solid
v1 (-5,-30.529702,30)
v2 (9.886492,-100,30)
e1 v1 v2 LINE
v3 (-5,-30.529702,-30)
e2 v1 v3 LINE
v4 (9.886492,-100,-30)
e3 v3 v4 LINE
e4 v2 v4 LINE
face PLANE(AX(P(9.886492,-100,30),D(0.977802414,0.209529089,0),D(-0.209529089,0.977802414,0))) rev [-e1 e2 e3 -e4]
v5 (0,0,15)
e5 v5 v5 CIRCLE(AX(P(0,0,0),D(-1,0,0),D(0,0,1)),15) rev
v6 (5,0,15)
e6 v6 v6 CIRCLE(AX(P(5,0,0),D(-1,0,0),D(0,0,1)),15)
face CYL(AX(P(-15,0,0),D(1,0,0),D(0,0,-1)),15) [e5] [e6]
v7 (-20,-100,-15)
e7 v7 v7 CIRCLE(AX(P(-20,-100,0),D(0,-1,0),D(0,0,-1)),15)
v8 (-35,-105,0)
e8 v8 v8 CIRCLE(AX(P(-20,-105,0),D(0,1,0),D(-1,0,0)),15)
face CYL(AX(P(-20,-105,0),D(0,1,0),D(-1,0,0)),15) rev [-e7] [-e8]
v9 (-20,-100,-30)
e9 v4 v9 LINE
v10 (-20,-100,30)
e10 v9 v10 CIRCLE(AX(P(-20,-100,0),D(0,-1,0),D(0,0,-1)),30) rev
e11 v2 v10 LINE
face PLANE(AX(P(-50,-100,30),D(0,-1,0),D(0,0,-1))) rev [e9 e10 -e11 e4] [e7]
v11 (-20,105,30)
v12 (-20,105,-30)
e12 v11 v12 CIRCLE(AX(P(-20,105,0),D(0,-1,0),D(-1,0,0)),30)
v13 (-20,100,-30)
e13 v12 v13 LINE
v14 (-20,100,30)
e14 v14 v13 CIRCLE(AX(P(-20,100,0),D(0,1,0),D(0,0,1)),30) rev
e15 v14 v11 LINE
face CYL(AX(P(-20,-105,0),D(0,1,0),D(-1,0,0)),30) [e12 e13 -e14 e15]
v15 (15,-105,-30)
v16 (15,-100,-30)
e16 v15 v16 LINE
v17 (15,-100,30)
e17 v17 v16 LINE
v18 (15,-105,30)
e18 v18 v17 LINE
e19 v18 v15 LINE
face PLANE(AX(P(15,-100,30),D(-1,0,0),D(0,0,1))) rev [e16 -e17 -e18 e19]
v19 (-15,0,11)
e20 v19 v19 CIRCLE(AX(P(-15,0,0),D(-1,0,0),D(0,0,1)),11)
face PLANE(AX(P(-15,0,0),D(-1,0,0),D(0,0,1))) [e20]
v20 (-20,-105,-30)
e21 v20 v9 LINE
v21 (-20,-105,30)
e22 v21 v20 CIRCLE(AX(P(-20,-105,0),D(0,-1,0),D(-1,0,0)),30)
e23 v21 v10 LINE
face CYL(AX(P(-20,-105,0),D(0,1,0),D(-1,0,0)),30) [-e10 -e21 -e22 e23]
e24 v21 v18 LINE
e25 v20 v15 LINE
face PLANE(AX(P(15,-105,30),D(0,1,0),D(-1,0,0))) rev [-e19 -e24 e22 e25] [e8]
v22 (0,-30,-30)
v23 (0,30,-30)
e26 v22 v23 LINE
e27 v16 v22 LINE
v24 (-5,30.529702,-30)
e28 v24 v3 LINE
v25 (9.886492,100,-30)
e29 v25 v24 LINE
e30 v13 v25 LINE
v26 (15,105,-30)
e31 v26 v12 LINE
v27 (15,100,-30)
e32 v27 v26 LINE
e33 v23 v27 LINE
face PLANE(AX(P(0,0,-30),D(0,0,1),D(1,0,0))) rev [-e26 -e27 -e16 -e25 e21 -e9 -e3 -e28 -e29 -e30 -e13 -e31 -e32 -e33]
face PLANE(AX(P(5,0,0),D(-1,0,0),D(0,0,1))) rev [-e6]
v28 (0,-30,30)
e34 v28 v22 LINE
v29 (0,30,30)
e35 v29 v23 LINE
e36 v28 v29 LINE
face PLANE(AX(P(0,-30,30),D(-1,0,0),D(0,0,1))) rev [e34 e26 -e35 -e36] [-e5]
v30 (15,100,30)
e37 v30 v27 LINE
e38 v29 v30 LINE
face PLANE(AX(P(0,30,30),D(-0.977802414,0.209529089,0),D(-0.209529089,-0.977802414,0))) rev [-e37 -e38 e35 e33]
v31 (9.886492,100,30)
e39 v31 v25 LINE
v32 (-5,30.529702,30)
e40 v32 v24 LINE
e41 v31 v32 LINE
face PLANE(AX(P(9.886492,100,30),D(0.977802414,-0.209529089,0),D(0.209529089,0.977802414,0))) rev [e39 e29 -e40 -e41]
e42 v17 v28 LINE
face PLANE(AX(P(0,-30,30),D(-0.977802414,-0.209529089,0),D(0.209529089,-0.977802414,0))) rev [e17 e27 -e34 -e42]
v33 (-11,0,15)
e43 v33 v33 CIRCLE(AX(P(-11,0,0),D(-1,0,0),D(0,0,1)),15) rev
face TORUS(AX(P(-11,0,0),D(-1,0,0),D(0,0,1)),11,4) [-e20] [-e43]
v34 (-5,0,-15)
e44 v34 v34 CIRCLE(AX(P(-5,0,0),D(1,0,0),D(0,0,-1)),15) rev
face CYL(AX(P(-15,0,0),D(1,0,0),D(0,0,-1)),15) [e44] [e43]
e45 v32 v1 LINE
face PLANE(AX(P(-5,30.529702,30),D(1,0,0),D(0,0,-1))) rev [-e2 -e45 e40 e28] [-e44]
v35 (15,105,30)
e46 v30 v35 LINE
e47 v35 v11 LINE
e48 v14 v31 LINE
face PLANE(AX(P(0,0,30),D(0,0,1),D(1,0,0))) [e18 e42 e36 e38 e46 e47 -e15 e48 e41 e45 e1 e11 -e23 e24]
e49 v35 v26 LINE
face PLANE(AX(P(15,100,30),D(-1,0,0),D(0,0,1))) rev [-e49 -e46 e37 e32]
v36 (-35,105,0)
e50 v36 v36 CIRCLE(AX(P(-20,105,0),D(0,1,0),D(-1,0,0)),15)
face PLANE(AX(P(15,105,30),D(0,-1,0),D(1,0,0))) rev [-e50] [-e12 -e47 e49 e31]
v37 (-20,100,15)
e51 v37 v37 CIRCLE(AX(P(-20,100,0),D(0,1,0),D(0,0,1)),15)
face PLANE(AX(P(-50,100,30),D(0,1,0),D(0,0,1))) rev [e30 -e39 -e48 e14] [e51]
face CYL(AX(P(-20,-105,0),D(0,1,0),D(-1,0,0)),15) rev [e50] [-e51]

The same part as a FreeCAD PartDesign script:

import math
import FreeCAD as App
import Part
import Sketcher
from FreeCAD import Vector
Q = App.Units.Quantity


def edges_at(feature, points):
    """Names of the edges that pass closest to the given points."""
    edges = feature.Shape.Edges
    near = lambda p: min(range(len(edges)), key=lambda i: edges[i].distToShape(Part.Vertex(*p))[0])
    return sorted({f"Edge{near(p) + 1}" for p in points})

doc = App.newDocument("Part")
params = doc.addObject("Spreadsheet::Sheet", "Params")
for row, (alias, value) in enumerate([
    ("sketch1_width", "65 mm"),
    ("sketch1_height", "60 mm"),
    ("sketch1_height2", "5 mm"),
    ("pad1_length", "60 mm"),
    ("sketch2_diameter", "30 mm"),
    ("sketch2_radius", "30 mm"),
    ("pocket1_length", "210 mm"),
    ("sketch3_diameter", "30 mm"),
    ("pad2_length", "20 mm"),
    ("fillet_radius", "4 mm"),
], start=1):
    params.set(f"A{row}", alias)
    params.set(f"B{row}", "=" + value)
    params.setAlias(f"B{row}", alias)

body = doc.addObject("PartDesign::Body", "Body")

# Sketch on XY plane
sketch1 = body.newObject("Sketcher::SketchObject", "Sketch")
sketch1.AttachmentSupport = (doc.getObject("XY_Plane"), [""])
sketch1.MapMode = "FlatFace"
sketch1.addGeometry([
    Part.LineSegment(Vector(0, -30, 0), Vector(0, 30, 0)),  # 0
    Part.LineSegment(Vector(0, 30, 0), Vector(15, 100, 0)),  # 1
    Part.LineSegment(Vector(15, 100, 0), Vector(15, 105, 0)),  # 2
    Part.LineSegment(Vector(15, 105, 0), Vector(-50, 105, 0)),  # 3
    Part.LineSegment(Vector(-50, 105, 0), Vector(-50, 100, 0)),  # 4
    Part.LineSegment(Vector(-50, 100, 0), Vector(10, 100, 0)),  # 5
    Part.LineSegment(Vector(10, 100, 0), Vector(-5, 31, 0)),  # 6
    Part.LineSegment(Vector(-5, 31, 0), Vector(-5, -31, 0)),  # 7
    Part.LineSegment(Vector(-5, -31, 0), Vector(10, -100, 0)),  # 8
    Part.LineSegment(Vector(10, -100, 0), Vector(-50, -100, 0)),  # 9
    Part.LineSegment(Vector(-50, -100, 0), Vector(-50, -105, 0)),  # 10
    Part.LineSegment(Vector(-50, -105, 0), Vector(15, -105, 0)),  # 11
    Part.LineSegment(Vector(15, -105, 0), Vector(15, -100, 0)),  # 12
    Part.LineSegment(Vector(15, -100, 0), Vector(0, -30, 0)),  # 13
], False)
sketch1.addConstraint([
    Sketcher.Constraint("Coincident", 0, 2, 1, 1),
    Sketcher.Constraint("Coincident", 1, 2, 2, 1),
    Sketcher.Constraint("Coincident", 2, 2, 3, 1),
    Sketcher.Constraint("Coincident", 3, 2, 4, 1),
    Sketcher.Constraint("Coincident", 4, 2, 5, 1),
    Sketcher.Constraint("Coincident", 5, 2, 6, 1),
    Sketcher.Constraint("Coincident", 6, 2, 7, 1),
    Sketcher.Constraint("Coincident", 7, 2, 8, 1),
    Sketcher.Constraint("Coincident", 8, 2, 9, 1),
    Sketcher.Constraint("Coincident", 9, 2, 10, 1),
    Sketcher.Constraint("Coincident", 10, 2, 11, 1),
    Sketcher.Constraint("Coincident", 11, 2, 12, 1),
    Sketcher.Constraint("Coincident", 12, 2, 13, 1),
    Sketcher.Constraint("Coincident", 13, 2, 0, 1),
    Sketcher.Constraint("Vertical", 0),
    Sketcher.Constraint("Vertical", 2),
    Sketcher.Constraint("Horizontal", 3),
    Sketcher.Constraint("Vertical", 4),
    Sketcher.Constraint("Horizontal", 5),
    Sketcher.Constraint("Vertical", 7),
    Sketcher.Constraint("Horizontal", 9),
    Sketcher.Constraint("Vertical", 10),
    Sketcher.Constraint("Horizontal", 11),
    Sketcher.Constraint("Vertical", 12),
    Sketcher.Constraint("Symmetric", 0, 2, 13, 2, -1, 1),
    Sketcher.Constraint("Symmetric", 5, 2, 8, 2, -1),
    Sketcher.Constraint("Symmetric", 3, 2, 10, 2, -1),
    Sketcher.Constraint("Symmetric", 1, 2, 12, 2, -1),
    Sketcher.Constraint("Parallel", 1, 6),
    Sketcher.Constraint("Parallel", 8, 13),
    Sketcher.Constraint("Horizontal", 1, 2, 4, 2),
    Sketcher.Constraint("DistanceX", 3, 2, 3, 1, Q("65 mm")),
    Sketcher.Constraint("DistanceY", 0, 1, 0, 2, Q("60 mm")),
    Sketcher.Constraint("DistanceY", 2, 1, 2, 2, Q("5 mm")),
    Sketcher.Constraint("DistanceX", -1, 1, 1, 2, Q("15 mm")),
    Sketcher.Constraint("DistanceY", -1, 1, 1, 2, Q("100 mm")),
    Sketcher.Constraint("DistanceX", 6, 2, -1, 1, Q("5 mm")),
    Sketcher.Constraint("DistanceY", -1, 1, 6, 2, Q("30.529702 mm")),
])
sketch1.setExpression("Constraints[31]", "Params.sketch1_width")
sketch1.setExpression("Constraints[32]", "Params.sketch1_height")
sketch1.setExpression("Constraints[33]", "Params.sketch1_height2")
pad1 = body.newObject("PartDesign::Pad", "Pad")
pad1.Profile = sketch1
pad1.setExpression("Length", "Params.pad1_length")
pad1.Midplane = True

# Sketch on XZ plane
sketch2 = body.newObject("Sketcher::SketchObject", "Sketch001")
sketch2.AttachmentSupport = (doc.getObject("XZ_Plane"), [""])
sketch2.MapMode = "FlatFace"
sketch2.AttachmentOffset = App.Placement(Vector(0, 0, -105), App.Rotation())
sketch2.addGeometry([
    Part.Circle(Vector(-20, 0, 0), Vector(0, 0, 1), 15),  # 0
    Part.LineSegment(Vector(-20, -30, 0), Vector(-20, -33.1, 0)),  # 1
    Part.LineSegment(Vector(-20, -33.1, 0), Vector(-53.4, -33.1, 0)),  # 2
    Part.LineSegment(Vector(-53.4, -33.1, 0), Vector(-53.4, 33, 0)),  # 3
    Part.LineSegment(Vector(-53.4, 33, 0), Vector(-20, 33, 0)),  # 4
    Part.LineSegment(Vector(-20, 33, 0), Vector(-20, 30, 0)),  # 5
    Part.ArcOfCircle(Part.Circle(Vector(-20, 0, 0), Vector(0, 0, 1), 30), math.radians(90), math.radians(270)),  # 6
], False)
sketch2.addConstraint([
    Sketcher.Constraint("Coincident", 1, 2, 2, 1),
    Sketcher.Constraint("Coincident", 2, 2, 3, 1),
    Sketcher.Constraint("Coincident", 3, 2, 4, 1),
    Sketcher.Constraint("Coincident", 4, 2, 5, 1),
    Sketcher.Constraint("Coincident", 5, 2, 6, 1),
    Sketcher.Constraint("Coincident", 6, 2, 1, 1),
    Sketcher.Constraint("Vertical", 1),
    Sketcher.Constraint("Horizontal", 2),
    Sketcher.Constraint("Vertical", 3),
    Sketcher.Constraint("Horizontal", 4),
    Sketcher.Constraint("Vertical", 5),
    Sketcher.Constraint("Coincident", 6, 3, 0, 3),
    Sketcher.Constraint("Symmetric", 5, 2, 6, 2, -1),
    Sketcher.Constraint("Vertical", 6, 3, 1, 2),
    Sketcher.Constraint("Diameter", 0, Q("30 mm")),
    Sketcher.Constraint("Radius", 6, Q("30 mm")),
    Sketcher.Constraint("DistanceX", 0, 3, -1, 1, Q("20 mm")),
    Sketcher.Constraint("DistanceY", 3, 1, 3, 2, Q("66.080459 mm")),
    Sketcher.Constraint("DistanceX", 2, 2, 2, 1, Q("33.393516 mm")),
    Sketcher.Constraint("DistanceY", 1, 2, 1, 1, Q("3.122934 mm")),
])
sketch2.setExpression("Constraints[14]", "Params.sketch2_diameter")
sketch2.setExpression("Constraints[15]", "Params.sketch2_radius")
pocket1 = body.newObject("PartDesign::Pocket", "Pocket")
pocket1.Profile = sketch2
pocket1.setExpression("Length", "Params.pocket1_length")
pocket1.Reversed = True

# Sketch on YZ plane
sketch3 = body.newObject("Sketcher::SketchObject", "Sketch002")
sketch3.AttachmentSupport = (doc.getObject("YZ_Plane"), [""])
sketch3.MapMode = "FlatFace"
sketch3.AttachmentOffset = App.Placement(Vector(0, 0, -5), App.Rotation())
sketch3.addGeometry(Part.Circle(Vector(0, 0, 0), Vector(0, 0, 1), 15), False)
sketch3.addConstraint([
    Sketcher.Constraint("Coincident", 0, 3, -1, 1),
    Sketcher.Constraint("Diameter", 0, Q("30 mm")),
])
sketch3.setExpression("Constraints[1]", "Params.sketch3_diameter")
pad2 = body.newObject("PartDesign::Pad", "Pad001")
pad2.Profile = sketch3
pad2.setExpression("Length", "Params.pad2_length")
pad2.Midplane = True
doc.recompute()

fillet = body.newObject("PartDesign::Fillet", "Fillet")
fillet.Base = (pad2, edges_at(pad2, [(-15, 0, -15)]))
fillet.setExpression("Radius", "Params.fillet_radius")

doc.recompute()
